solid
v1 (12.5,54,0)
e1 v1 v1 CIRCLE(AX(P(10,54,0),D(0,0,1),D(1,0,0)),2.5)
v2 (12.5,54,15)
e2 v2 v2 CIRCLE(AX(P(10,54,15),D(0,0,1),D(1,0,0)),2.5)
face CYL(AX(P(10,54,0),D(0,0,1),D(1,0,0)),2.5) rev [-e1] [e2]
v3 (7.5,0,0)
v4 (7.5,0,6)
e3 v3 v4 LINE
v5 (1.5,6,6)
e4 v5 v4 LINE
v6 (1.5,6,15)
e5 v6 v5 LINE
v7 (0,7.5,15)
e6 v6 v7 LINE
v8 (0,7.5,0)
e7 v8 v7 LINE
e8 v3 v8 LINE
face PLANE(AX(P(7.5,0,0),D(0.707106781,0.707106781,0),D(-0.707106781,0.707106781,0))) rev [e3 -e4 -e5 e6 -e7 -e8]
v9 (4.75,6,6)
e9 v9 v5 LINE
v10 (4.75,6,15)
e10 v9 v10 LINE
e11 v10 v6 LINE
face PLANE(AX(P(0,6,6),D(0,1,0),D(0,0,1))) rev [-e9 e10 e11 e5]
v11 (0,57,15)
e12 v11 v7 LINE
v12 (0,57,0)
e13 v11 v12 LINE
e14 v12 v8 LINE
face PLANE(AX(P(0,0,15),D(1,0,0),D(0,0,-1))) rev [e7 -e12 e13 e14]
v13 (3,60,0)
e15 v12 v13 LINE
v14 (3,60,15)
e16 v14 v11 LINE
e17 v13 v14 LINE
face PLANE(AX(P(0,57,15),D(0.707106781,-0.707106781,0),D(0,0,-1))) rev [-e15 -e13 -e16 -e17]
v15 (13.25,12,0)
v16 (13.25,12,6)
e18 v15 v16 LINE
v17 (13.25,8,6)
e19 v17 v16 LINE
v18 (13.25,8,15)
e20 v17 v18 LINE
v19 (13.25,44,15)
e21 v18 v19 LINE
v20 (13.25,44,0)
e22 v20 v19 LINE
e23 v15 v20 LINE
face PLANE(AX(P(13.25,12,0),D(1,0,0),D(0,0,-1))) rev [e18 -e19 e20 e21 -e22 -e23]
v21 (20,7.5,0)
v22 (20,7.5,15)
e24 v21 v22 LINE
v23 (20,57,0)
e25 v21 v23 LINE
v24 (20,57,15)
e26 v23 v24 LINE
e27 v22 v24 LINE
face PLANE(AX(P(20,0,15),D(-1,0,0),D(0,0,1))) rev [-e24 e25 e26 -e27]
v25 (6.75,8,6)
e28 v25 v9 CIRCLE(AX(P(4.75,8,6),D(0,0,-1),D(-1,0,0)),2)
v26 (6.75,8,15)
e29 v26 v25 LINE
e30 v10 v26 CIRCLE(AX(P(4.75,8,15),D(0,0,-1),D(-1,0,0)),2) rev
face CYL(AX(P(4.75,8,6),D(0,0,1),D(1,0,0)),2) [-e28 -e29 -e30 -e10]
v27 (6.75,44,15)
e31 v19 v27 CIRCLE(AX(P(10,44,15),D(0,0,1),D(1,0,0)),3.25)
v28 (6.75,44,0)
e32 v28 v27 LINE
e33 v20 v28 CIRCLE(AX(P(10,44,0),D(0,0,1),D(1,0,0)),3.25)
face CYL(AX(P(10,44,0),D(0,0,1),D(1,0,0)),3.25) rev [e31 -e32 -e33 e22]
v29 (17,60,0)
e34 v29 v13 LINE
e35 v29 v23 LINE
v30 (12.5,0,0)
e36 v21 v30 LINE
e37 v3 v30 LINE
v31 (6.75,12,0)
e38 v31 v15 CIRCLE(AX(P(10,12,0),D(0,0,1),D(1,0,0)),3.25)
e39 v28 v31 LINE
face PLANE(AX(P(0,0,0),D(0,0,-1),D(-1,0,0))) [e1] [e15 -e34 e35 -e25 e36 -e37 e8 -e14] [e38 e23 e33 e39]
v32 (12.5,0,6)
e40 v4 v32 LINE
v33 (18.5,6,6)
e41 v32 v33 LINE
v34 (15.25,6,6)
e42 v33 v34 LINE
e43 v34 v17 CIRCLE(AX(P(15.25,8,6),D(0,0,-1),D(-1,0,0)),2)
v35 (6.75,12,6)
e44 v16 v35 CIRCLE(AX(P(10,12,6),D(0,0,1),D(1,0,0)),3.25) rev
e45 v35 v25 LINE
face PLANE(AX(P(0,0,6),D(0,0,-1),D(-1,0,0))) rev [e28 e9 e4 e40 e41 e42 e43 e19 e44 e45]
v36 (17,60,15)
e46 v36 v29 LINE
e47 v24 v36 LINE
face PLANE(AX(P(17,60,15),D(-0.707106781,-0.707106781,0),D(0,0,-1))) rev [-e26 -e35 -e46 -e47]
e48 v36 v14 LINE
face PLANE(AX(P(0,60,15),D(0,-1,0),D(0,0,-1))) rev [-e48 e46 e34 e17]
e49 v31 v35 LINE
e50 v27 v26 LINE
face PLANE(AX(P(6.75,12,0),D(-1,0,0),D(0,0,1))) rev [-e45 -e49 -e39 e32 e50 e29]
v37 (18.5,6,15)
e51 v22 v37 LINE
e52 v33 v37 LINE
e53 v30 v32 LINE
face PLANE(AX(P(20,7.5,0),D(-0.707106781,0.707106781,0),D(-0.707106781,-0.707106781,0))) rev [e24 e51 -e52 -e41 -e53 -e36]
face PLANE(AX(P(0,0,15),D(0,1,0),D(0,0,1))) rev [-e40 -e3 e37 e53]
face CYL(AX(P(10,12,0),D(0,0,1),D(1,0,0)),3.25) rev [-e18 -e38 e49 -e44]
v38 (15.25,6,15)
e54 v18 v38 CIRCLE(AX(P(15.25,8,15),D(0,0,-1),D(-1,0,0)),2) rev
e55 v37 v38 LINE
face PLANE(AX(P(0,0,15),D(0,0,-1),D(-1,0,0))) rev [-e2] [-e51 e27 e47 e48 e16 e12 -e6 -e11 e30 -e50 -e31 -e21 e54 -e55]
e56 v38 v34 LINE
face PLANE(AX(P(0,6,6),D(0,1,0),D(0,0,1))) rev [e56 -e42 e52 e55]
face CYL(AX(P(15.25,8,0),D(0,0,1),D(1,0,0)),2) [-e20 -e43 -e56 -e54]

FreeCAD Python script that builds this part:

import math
import FreeCAD as App
import Part
import Sketcher
from FreeCAD import Vector
Q = App.Units.Quantity


def edges_at(feature, points):
    """Names of the edges that pass closest to the given points."""
    edges = feature.Shape.Edges
    near = lambda p: min(range(len(edges)), key=lambda i: edges[i].distToShape(Part.Vertex(*p))[0])
    return sorted({f"Edge{near(p) + 1}" for p in points})

doc = App.newDocument("Part")
body = doc.addObject("PartDesign::Body", "Body")

sketch1 = body.newObject("Sketcher::SketchObject", "Sketch")
sketch1.AttachmentSupport = (doc.getObject("XY_Plane"), [""])
sketch1.MapMode = "FlatFace"
sketch1.addGeometry(Part.LineSegment(Vector(0, 60, 0), Vector(0, 0, 0)), False)
sketch1.addGeometry(Part.LineSegment(Vector(0, 0, 0), Vector(20, 0, 0)), False)
sketch1.addGeometry(Part.LineSegment(Vector(20, 0, 0), Vector(20, 60, 0)), False)
sketch1.addGeometry(Part.LineSegment(Vector(20, 60, 0), Vector(0, 60, 0)), False)
sketch1.addConstraint(Sketcher.Constraint("Coincident", 0, 2, 1, 1))
sketch1.addConstraint(Sketcher.Constraint("Coincident", 1, 2, 2, 1))
sketch1.addConstraint(Sketcher.Constraint("Coincident", 2, 2, 3, 1))
sketch1.addConstraint(Sketcher.Constraint("Coincident", 3, 2, 0, 1))
sketch1.addConstraint(Sketcher.Constraint("Vertical", 0))
sketch1.addConstraint(Sketcher.Constraint("Horizontal", 1))
sketch1.addConstraint(Sketcher.Constraint("Vertical", 2))
sketch1.addConstraint(Sketcher.Constraint("Horizontal", 3))
sketch1.addConstraint(Sketcher.Constraint("Coincident", 0, 2, -1, 1))
sketch1.addConstraint(Sketcher.Constraint("DistanceX", 1, 1, 1, 2, Q("20 mm")))
sketch1.addConstraint(Sketcher.Constraint("DistanceY", 0, 2, 0, 1, Q("60 mm")))
pad1 = body.newObject("PartDesign::Pad", "Pad")
pad1.Profile = sketch1
pad1.Length = 15

sketch2 = body.newObject("Sketcher::SketchObject", "Sketch001")
sketch2.AttachmentSupport = (doc.getObject("XY_Plane"), [""])
sketch2.MapMode = "FlatFace"
sketch2.AttachmentOffset = App.Placement(Vector(0, 0, 15), App.Rotation())
sketch2.addGeometry(Part.Circle(Vector(10, 54, 0), Vector(0, 0, 1), 2.5), False)
sketch2.addGeometry(Part.LineSegment(Vector(6.8, 44, 0), Vector(6.8, 12, 0)), False)
sketch2.addGeometry(Part.ArcOfCircle(Part.Circle(Vector(10, 12, 0), Vector(0, 0, 1), 3.2), math.radians(180), math.radians(360)), False)
sketch2.addGeometry(Part.LineSegment(Vector(13.2, 12, 0), Vector(13.2, 44, 0)), False)
sketch2.addGeometry(Part.ArcOfCircle(Part.Circle(Vector(10, 44, 0), Vector(0, 0, 1), 3.2), math.radians(0), math.radians(180)), False)
sketch2.addConstraint(Sketcher.Constraint("Tangent", 1, 2, 2, 1))
sketch2.addConstraint(Sketcher.Constraint("Tangent", 2, 2, 3, 1))
sketch2.addConstraint(Sketcher.Constraint("Tangent", 3, 2, 4, 1))
sketch2.addConstraint(Sketcher.Constraint("Tangent", 4, 2, 1, 1))
sketch2.addConstraint(Sketcher.Constraint("Vertical", 1))
sketch2.addConstraint(Sketcher.Constraint("Vertical", 3))
sketch2.addConstraint(Sketcher.Constraint("Vertical", 0, 3, 2, 3))
sketch2.addConstraint(Sketcher.Constraint("Diameter", 0, Q("5 mm")))
sketch2.addConstraint(Sketcher.Constraint("DistanceY", 1, 2, 1, 1, Q("32 mm")))
sketch2.addConstraint(Sketcher.Constraint("Radius", 2, Q("3.25 mm")))
sketch2.addConstraint(Sketcher.Constraint("DistanceX", -1, 1, 0, 3, Q("10 mm")))
sketch2.addConstraint(Sketcher.Constraint("DistanceY", -1, 1, 0, 3, Q("54 mm")))
sketch2.addConstraint(Sketcher.Constraint("DistanceY", -1, 1, 2, 3, Q("12 mm")))
pocket1 = body.newObject("PartDesign::Pocket", "Pocket")
pocket1.Profile = sketch2
pocket1.Length = 15

sketch3 = body.newObject("Sketcher::SketchObject", "Sketch002")
sketch3.AttachmentSupport = (doc.getObject("XY_Plane"), [""])
sketch3.MapMode = "FlatFace"
sketch3.AttachmentOffset = App.Placement(Vector(0, 0, 15), App.Rotation())
sketch3.addGeometry(Part.LineSegment(Vector(0, 6, 0), Vector(0, 0, 0)), False)
sketch3.addGeometry(Part.LineSegment(Vector(0, 0, 0), Vector(20, 0, 0)), False)
sketch3.addGeometry(Part.LineSegment(Vector(20, 0, 0), Vector(20, 6, 0)), False)
sketch3.addGeometry(Part.LineSegment(Vector(20, 6, 0), Vector(0, 6, 0)), False)
sketch3.addConstraint(Sketcher.Constraint("Coincident", 0, 2, 1, 1))
sketch3.addConstraint(Sketcher.Constraint("Coincident", 1, 2, 2, 1))
sketch3.addConstraint(Sketcher.Constraint("Coincident", 2, 2, 3, 1))
sketch3.addConstraint(Sketcher.Constraint("Coincident", 3, 2, 0, 1))
sketch3.addConstraint(Sketcher.Constraint("Vertical", 0))
sketch3.addConstraint(Sketcher.Constraint("Horizontal", 1))
sketch3.addConstraint(Sketcher.Constraint("Vertical", 2))
sketch3.addConstraint(Sketcher.Constraint("Horizontal", 3))
sketch3.addConstraint(Sketcher.Constraint("Coincident", 0, 2, -1, 1))
sketch3.addConstraint(Sketcher.Constraint("DistanceX", 1, 1, 1, 2, Q("20 mm")))
sketch3.addConstraint(Sketcher.Constraint("DistanceY", 0, 2, 0, 1, Q("6 mm")))
pocket2 = body.newObject("PartDesign::Pocket", "Pocket001")
pocket2.Profile = sketch3
pocket2.Length = 9

sketch4 = body.newObject("Sketcher::SketchObject", "Sketch003")
sketch4.AttachmentSupport = (doc.getObject("XY_Plane"), [""])
sketch4.MapMode = "FlatFace"
sketch4.AttachmentOffset = App.Placement(Vector(0, 0, 15), App.Rotation())
sketch4.addGeometry(Part.LineSegment(Vector(8, 0, 0), Vector(0, 8, 0)), False)
sketch4.addGeometry(Part.LineSegment(Vector(0, 8, 0), Vector(0, -8, 0)), False)
sketch4.addGeometry(Part.LineSegment(Vector(0, -8, 0), Vector(20, -8, 0)), False)
sketch4.addGeometry(Part.LineSegment(Vector(20, -8, 0), Vector(20, 8, 0)), False)
sketch4.addGeometry(Part.LineSegment(Vector(20, 8, 0), Vector(12, 0, 0)), False)
sketch4.addGeometry(Part.LineSegment(Vector(12, 0, 0), Vector(8, 0, 0)), False)
sketch4.addConstraint(Sketcher.Constraint("Coincident", 0, 2, 1, 1))
sketch4.addConstraint(Sketcher.Constraint("Coincident", 1, 2, 2, 1))
sketch4.addConstraint(Sketcher.Constraint("Coincident", 2, 2, 3, 1))
sketch4.addConstraint(Sketcher.Constraint("Coincident", 3, 2, 4, 1))
sketch4.addConstraint(Sketcher.Constraint("Coincident", 4, 2, 5, 1))
sketch4.addConstraint(Sketcher.Constraint("Coincident", 5, 2, 0, 1))
sketch4.addConstraint(Sketcher.Constraint("Vertical", 1))
sketch4.addConstraint(Sketcher.Constraint("Horizontal", 2))
sketch4.addConstraint(Sketcher.Constraint("Vertical", 3))
sketch4.addConstraint(Sketcher.Constraint("Horizontal", 5))
sketch4.addConstraint(Sketcher.Constraint("Symmetric", 0, 2, 1, 2, -1, 1))
sketch4.addConstraint(Sketcher.Constraint("PointOnObject", 4, 2, -1))
sketch4.addConstraint(Sketcher.Constraint("Perpendicular", 0, 4))
sketch4.addConstraint(Sketcher.Constraint("Horizontal", 0, 2, 3, 2))
sketch4.addConstraint(Sketcher.Constraint("Equal", 0, 4))
sketch4.addConstraint(Sketcher.Constraint("DistanceX", 2, 1, 2, 2, Q("20 mm")))
sketch4.addConstraint(Sketcher.Constraint("DistanceX", 5, 2, 5, 1, Q("5 mm")))
pocket3 = body.newObject("PartDesign::Pocket", "Pocket002")
pocket3.Profile = sketch4
pocket3.Length = 15

sketch5 = body.newObject("Sketcher::SketchObject", "Sketch004")
sketch5.AttachmentSupport = (doc.getObject("XY_Plane"), [""])
sketch5.MapMode = "FlatFace"
sketch5.AttachmentOffset = App.Placement(Vector(0, 0, 15), App.Rotation())
sketch5.addGeometry(Part.LineSegment(Vector(7, 14, 0), Vector(7, 6, 0)), False)
sketch5.addGeometry(Part.LineSegment(Vector(7, 6, 0), Vector(13, 6, 0)), False)
sketch5.addGeometry(Part.LineSegment(Vector(13, 6, 0), Vector(13, 14, 0)), False)
sketch5.addGeometry(Part.LineSegment(Vector(13, 14, 0), Vector(7, 14, 0)), False)
sketch5.addConstraint(Sketcher.Constraint("Coincident", 0, 2, 1, 1))
sketch5.addConstraint(Sketcher.Constraint("Coincident", 1, 2, 2, 1))
sketch5.addConstraint(Sketcher.Constraint("Coincident", 2, 2, 3, 1))
sketch5.addConstraint(Sketcher.Constraint("Coincident", 3, 2, 0, 1))
sketch5.addConstraint(Sketcher.Constraint("Vertical", 0))
sketch5.addConstraint(Sketcher.Constraint("Horizontal", 1))
sketch5.addConstraint(Sketcher.Constraint("Vertical", 2))
sketch5.addConstraint(Sketcher.Constraint("Horizontal", 3))
sketch5.addConstraint(Sketcher.Constraint("DistanceY", 0, 2, 0, 1, Q("8 mm")))
sketch5.addConstraint(Sketcher.Constraint("DistanceX", 1, 1, 1, 2, Q("6.5 mm")))
sketch5.addConstraint(Sketcher.Constraint("DistanceY", -1, 1, 0, 2, Q("6 mm")))
sketch5.addConstraint(Sketcher.Constraint("DistanceX", -1, 1, 0, 2, Q("6.75 mm")))
pocket4 = body.newObject("PartDesign::Pocket", "Pocket003")
pocket4.Profile = sketch5
pocket4.Length = 9
doc.recompute()

fillet = body.newObject("PartDesign::Fillet", "Fillet")
fillet.Base = (pocket4, edges_at(pocket4, [(6.75, 6, 10.5), (13.25, 6, 10.5)]))
fillet.Radius = 2
doc.recompute()

chamfer = body.newObject("PartDesign::Chamfer", "Chamfer")
chamfer.Base = (fillet, edges_at(fillet, [(0, 60, 7.5), (20, 60, 7.5)]))
chamfer.Size = 3

doc.recompute()
